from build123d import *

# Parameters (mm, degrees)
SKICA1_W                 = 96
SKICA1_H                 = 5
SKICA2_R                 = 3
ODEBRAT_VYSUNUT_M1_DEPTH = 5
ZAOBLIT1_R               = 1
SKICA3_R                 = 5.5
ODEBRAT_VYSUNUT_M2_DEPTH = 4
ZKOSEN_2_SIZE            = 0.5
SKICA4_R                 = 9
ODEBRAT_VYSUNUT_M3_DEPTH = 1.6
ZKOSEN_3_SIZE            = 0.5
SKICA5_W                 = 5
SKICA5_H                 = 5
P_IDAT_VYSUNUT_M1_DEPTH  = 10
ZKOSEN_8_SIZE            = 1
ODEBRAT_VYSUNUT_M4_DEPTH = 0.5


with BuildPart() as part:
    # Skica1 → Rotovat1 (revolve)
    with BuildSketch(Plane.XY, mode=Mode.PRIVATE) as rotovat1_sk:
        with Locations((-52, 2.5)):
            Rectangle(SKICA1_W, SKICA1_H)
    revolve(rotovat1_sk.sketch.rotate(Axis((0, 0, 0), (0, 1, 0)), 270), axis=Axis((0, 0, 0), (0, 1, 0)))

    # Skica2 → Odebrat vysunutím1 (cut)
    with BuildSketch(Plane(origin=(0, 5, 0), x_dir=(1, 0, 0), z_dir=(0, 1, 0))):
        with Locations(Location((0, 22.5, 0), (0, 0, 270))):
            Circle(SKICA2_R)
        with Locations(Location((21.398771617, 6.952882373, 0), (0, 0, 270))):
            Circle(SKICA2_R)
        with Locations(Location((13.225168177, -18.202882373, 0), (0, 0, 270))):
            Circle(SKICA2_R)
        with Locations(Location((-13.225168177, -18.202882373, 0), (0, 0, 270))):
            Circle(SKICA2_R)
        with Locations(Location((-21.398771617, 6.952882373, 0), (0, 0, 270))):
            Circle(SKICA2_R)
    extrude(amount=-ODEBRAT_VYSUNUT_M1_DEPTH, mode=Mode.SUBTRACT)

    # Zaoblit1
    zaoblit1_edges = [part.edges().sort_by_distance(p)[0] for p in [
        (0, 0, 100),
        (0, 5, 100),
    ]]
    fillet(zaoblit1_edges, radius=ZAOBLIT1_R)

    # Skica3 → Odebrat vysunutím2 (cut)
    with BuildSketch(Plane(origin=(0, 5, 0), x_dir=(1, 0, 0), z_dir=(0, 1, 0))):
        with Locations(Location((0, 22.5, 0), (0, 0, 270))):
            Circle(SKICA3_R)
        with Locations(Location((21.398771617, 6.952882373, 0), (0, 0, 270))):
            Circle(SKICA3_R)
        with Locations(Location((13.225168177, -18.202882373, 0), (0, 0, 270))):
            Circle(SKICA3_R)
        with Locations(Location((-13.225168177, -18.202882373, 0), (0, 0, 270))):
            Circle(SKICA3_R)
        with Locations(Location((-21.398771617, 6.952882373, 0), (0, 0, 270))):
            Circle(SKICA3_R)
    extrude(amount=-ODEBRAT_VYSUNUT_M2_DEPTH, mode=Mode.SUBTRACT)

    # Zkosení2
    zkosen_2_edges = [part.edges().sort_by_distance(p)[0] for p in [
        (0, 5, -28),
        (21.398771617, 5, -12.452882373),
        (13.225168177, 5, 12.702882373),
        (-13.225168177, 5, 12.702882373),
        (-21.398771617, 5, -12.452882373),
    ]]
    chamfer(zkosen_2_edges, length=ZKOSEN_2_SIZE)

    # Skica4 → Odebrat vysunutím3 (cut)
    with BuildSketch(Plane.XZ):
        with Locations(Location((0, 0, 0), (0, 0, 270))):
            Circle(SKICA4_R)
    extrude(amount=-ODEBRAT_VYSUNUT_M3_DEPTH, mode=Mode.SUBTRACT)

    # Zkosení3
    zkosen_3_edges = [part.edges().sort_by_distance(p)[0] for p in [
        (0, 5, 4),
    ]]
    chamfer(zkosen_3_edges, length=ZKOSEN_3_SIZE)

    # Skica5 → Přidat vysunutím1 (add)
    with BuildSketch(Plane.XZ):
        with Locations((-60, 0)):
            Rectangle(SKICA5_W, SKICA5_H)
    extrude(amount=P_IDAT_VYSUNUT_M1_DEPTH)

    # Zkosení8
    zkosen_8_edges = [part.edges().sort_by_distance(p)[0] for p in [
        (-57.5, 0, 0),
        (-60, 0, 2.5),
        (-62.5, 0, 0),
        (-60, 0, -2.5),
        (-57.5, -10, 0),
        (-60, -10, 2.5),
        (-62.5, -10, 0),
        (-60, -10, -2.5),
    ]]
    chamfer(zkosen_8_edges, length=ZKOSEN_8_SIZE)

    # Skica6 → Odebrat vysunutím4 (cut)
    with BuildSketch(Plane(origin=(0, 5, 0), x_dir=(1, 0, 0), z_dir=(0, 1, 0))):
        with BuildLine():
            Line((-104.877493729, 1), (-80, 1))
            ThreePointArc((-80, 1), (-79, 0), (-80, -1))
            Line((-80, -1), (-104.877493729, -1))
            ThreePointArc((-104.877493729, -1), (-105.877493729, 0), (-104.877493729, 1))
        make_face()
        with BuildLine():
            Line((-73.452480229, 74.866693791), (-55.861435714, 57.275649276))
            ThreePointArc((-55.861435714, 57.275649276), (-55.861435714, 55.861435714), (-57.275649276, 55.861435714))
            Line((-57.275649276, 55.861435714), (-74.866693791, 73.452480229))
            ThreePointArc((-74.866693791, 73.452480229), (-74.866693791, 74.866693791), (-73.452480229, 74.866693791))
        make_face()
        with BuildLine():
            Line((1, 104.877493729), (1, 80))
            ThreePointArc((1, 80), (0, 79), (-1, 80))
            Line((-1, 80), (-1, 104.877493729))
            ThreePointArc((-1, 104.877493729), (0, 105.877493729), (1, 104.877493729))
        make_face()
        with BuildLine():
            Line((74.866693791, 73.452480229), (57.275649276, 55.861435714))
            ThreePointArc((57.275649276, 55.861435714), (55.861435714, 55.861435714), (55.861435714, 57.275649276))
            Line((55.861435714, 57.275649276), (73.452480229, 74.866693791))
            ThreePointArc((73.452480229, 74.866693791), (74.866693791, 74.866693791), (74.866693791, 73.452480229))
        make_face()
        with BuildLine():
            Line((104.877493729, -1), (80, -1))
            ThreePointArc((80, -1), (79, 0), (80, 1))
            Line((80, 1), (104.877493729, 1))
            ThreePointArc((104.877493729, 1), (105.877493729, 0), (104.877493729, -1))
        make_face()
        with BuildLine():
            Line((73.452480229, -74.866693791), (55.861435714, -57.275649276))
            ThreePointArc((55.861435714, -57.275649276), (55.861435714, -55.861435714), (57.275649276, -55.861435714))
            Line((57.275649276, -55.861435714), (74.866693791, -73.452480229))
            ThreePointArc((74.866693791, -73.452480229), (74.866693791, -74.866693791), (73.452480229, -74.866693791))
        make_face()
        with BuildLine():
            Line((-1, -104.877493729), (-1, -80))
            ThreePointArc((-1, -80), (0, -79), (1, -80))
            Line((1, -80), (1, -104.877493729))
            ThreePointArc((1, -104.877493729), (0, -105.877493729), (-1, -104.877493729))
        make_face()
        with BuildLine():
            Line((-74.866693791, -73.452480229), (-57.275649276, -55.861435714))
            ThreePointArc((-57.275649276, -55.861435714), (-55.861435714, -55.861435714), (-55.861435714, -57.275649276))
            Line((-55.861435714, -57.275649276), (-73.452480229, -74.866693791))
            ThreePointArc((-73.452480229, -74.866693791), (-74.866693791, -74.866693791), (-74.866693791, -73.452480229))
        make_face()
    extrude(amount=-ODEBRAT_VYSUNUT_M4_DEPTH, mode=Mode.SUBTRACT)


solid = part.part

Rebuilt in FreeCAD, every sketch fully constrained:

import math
import FreeCAD as App
import Part
import Sketcher
Q = App.Units.Quantity


def edges_at(feature, points):
    """Names of the edges that pass closest to the given points."""
    edges = feature.Shape.Edges
    near = lambda p: min(range(len(edges)), key=lambda i: edges[i].distToShape(Part.Vertex(*p))[0])
    return sorted({f"Edge{near(p) + 1}" for p in points})


def add_polygon(sketch, points):
    """Adds a closed chain of lines whose ends are joined by coincident constraints."""
    first, n = sketch.GeometryCount, len(points)
    for a, b in zip(points, points[1:] + points[:1]):
        sketch.addGeometry(Part.LineSegment(App.Vector(*a, 0), App.Vector(*b, 0)), False)
    for i in range(n):
        sketch.addConstraint(Sketcher.Constraint("Coincident", first + i, 2, first + (i + 1) % n, 1))

doc = App.newDocument("Part")
params = doc.addObject("Spreadsheet::Sheet", "Params")
for row, (alias, value) in enumerate([
    ("sketch1_width", "96 mm"),
    ("sketch1_height", "5 mm"),
    ("revolution_angle", "360 deg"),
    ("sketch2_diameter", "6 mm"),
    ("pocket1_length", "5 mm"),
    ("fillet_radius", "1 mm"),
    ("sketch3_diameter", "11 mm"),
    ("pocket2_length", "4 mm"),
    ("chamfer_size", "0.5 mm"),
    ("sketch4_diameter", "18 mm"),
    ("pocket3_length", "1.6 mm"),
    ("chamfer2_size", "0.5 mm"),
    ("sketch5_width", "5 mm"),
    ("pad1_length", "10 mm"),
    ("chamfer3_size", "1 mm"),
    ("sketch6_radius", "1 mm"),
    ("pocket4_length", "0.5 mm"),
], start=1):
    params.set(f"A{row}", alias)
    params.set(f"B{row}", "=" + value)
    params.setAlias(f"B{row}", alias)

body = doc.addObject("PartDesign::Body", "Body")

sketch1 = body.newObject("Sketcher::SketchObject", "Sketch")
sketch1.AttachmentSupport = (doc.getObject("XY_Plane"), [""])
sketch1.MapMode = "FlatFace"
add_polygon(sketch1, [(-100, 5), (-100, 0), (-4, 0), (-4, 5)])
sketch1.addConstraint(Sketcher.Constraint("Vertical", 0))
sketch1.addConstraint(Sketcher.Constraint("Horizontal", 1))
sketch1.addConstraint(Sketcher.Constraint("Vertical", 2))
sketch1.addConstraint(Sketcher.Constraint("Horizontal", 3))
sketch1.addConstraint(Sketcher.Constraint("PointOnObject", 0, 2, -1))
sketch1.addConstraint(Sketcher.Constraint("DistanceX", 1, 1, 1, 2, Q("96 mm")))
sketch1.addConstraint(Sketcher.Constraint("DistanceY", 0, 2, 0, 1, Q("5 mm")))
sketch1.addConstraint(Sketcher.Constraint("DistanceX", 0, 2, -1, 1, Q("100 mm")))
sketch1.setExpression("Constraints[9]", "Params.sketch1_width")
sketch1.setExpression("Constraints[10]", "Params.sketch1_height")
revolution = body.newObject("PartDesign::Revolution", "Revolution")
revolution.Profile = sketch1
revolution.ReferenceAxis = (sketch1, ["V_Axis"])
revolution.setExpression("Angle", "Params.revolution_angle")

sketch2 = body.newObject("Sketcher::SketchObject", "Sketch001")
sketch2.AttachmentSupport = (doc.getObject("XZ_Plane"), [""])
sketch2.MapMode = "FlatFace"
sketch2.AttachmentOffset = App.Placement(App.Vector(0, 0, -5), App.Rotation())
sketch2.addGeometry(Part.Circle(App.Vector(0, -22.5, 0), App.Vector(0, 0, 1), 3), False)
sketch2.addGeometry(Part.Circle(App.Vector(21.4, -7, 0), App.Vector(0, 0, 1), 3), False)
sketch2.addGeometry(Part.Circle(App.Vector(13.2, 18.2, 0), App.Vector(0, 0, 1), 3), False)
sketch2.addGeometry(Part.Circle(App.Vector(-13.2, 18.2, 0), App.Vector(0, 0, 1), 3), False)
sketch2.addGeometry(Part.Circle(App.Vector(-21.4, -7, 0), App.Vector(0, 0, 1), 3), False)
sketch2.addConstraint(Sketcher.Constraint("Equal", 0, 1))
sketch2.addConstraint(Sketcher.Constraint("Equal", 1, 2))
sketch2.addConstraint(Sketcher.Constraint("Equal", 2, 3))
sketch2.addConstraint(Sketcher.Constraint("Equal", 3, 4))
sketch2.addConstraint(Sketcher.Constraint("Symmetric", 2, 3, 3, 3, -2))
sketch2.addConstraint(Sketcher.Constraint("Symmetric", 1, 3, 4, 3, -2))
sketch2.addConstraint(Sketcher.Constraint("PointOnObject", 0, 3, -2))
sketch2.addConstraint(Sketcher.Constraint("Diameter", 0, Q("6 mm")))
sketch2.addConstraint(Sketcher.Constraint("DistanceY", 0, 3, -1, 1, Q("22.5 mm")))
sketch2.addConstraint(Sketcher.Constraint("DistanceX", -1, 1, 1, 3, Q("21.398772 mm")))
sketch2.addConstraint(Sketcher.Constraint("DistanceX", -1, 1, 2, 3, Q("13.225168 mm")))
sketch2.addConstraint(Sketcher.Constraint("DistanceY", 1, 3, -1, 1, Q("6.952882 mm")))
sketch2.addConstraint(Sketcher.Constraint("DistanceY", -1, 1, 2, 3, Q("18.202882 mm")))
sketch2.setExpression("Constraints[7]", "Params.sketch2_diameter")
pocket1 = body.newObject("PartDesign::Pocket", "Pocket")
pocket1.Profile = sketch2
pocket1.setExpression("Length", "Params.pocket1_length")
pocket1.Reversed = True
doc.recompute()

fillet = body.newObject("PartDesign::Fillet", "Fillet")
fillet.Base = (pocket1, edges_at(pocket1, [(0, 0, 100), (0, 5, 100)]))
fillet.setExpression("Radius", "Params.fillet_radius")

sketch3 = body.newObject("Sketcher::SketchObject", "Sketch002")
sketch3.AttachmentSupport = (doc.getObject("XZ_Plane"), [""])
sketch3.MapMode = "FlatFace"
sketch3.AttachmentOffset = App.Placement(App.Vector(0, 0, -5), App.Rotation())
sketch3.addGeometry(Part.Circle(App.Vector(0, -22, 0), App.Vector(0, 0, 1), 6), False)
sketch3.addGeometry(Part.Circle(App.Vector(21, -7, 0), App.Vector(0, 0, 1), 6), False)
sketch3.addGeometry(Part.Circle(App.Vector(13, 18, 0), App.Vector(0, 0, 1), 6), False)
sketch3.addGeometry(Part.Circle(App.Vector(-13, 18, 0), App.Vector(0, 0, 1), 6), False)
sketch3.addGeometry(Part.Circle(App.Vector(-21, -7, 0), App.Vector(0, 0, 1), 6), False)
sketch3.addConstraint(Sketcher.Constraint("Equal", 0, 1))
sketch3.addConstraint(Sketcher.Constraint("Equal", 1, 2))
sketch3.addConstraint(Sketcher.Constraint("Equal", 2, 3))
sketch3.addConstraint(Sketcher.Constraint("Equal", 3, 4))
sketch3.addConstraint(Sketcher.Constraint("Symmetric", 2, 3, 3, 3, -2))
sketch3.addConstraint(Sketcher.Constraint("Symmetric", 1, 3, 4, 3, -2))
sketch3.addConstraint(Sketcher.Constraint("PointOnObject", 0, 3, -2))
sketch3.addConstraint(Sketcher.Constraint("Diameter", 0, Q("11 mm")))
sketch3.addConstraint(Sketcher.Constraint("DistanceY", 0, 3, -1, 1, Q("22.5 mm")))
sketch3.addConstraint(Sketcher.Constraint("DistanceX", -1, 1, 1, 3, Q("21.398772 mm")))
sketch3.addConstraint(Sketcher.Constraint("DistanceX", -1, 1, 2, 3, Q("13.225168 mm")))
sketch3.addConstraint(Sketcher.Constraint("DistanceY", 1, 3, -1, 1, Q("6.952882 mm")))
sketch3.addConstraint(Sketcher.Constraint("DistanceY", -1, 1, 2, 3, Q("18.202882 mm")))
sketch3.setExpression("Constraints[7]", "Params.sketch3_diameter")
pocket2 = body.newObject("PartDesign::Pocket", "Pocket001")
pocket2.Profile = sketch3
pocket2.setExpression("Length", "Params.pocket2_length")
pocket2.Reversed = True
doc.recompute()

chamfer = body.newObject("PartDesign::Chamfer", "Chamfer")
chamfer.Base = (pocket2, edges_at(pocket2, [
    (0, 5, -28),
    (21.399, 5, -12.453),
    (13.225, 5, 12.703),
    (-13.225, 5, 12.703),
    (-21.399, 5, -12.453),
]))
chamfer.setExpression("Size", "Params.chamfer_size")

sketch4 = body.newObject("Sketcher::SketchObject", "Sketch003")
sketch4.AttachmentSupport = (doc.getObject("XZ_Plane"), [""])
sketch4.MapMode = "FlatFace"
sketch4.addGeometry(Part.Circle(App.Vector(0, 0, 0), App.Vector(0, 0, 1), 9), False)
sketch4.addConstraint(Sketcher.Constraint("Coincident", 0, 3, -1, 1))
sketch4.addConstraint(Sketcher.Constraint("Diameter", 0, Q("18 mm")))
sketch4.setExpression("Constraints[1]", "Params.sketch4_diameter")
pocket3 = body.newObject("PartDesign::Pocket", "Pocket002")
pocket3.Profile = sketch4
pocket3.setExpression("Length", "Params.pocket3_length")
doc.recompute()

chamfer2 = body.newObject("PartDesign::Chamfer", "Chamfer001")
chamfer2.Base = (pocket3, edges_at(pocket3, [(0, 5, 4)]))
chamfer2.setExpression("Size", "Params.chamfer2_size")

sketch5 = body.newObject("Sketcher::SketchObject", "Sketch004")
sketch5.AttachmentSupport = (doc.getObject("XZ_Plane"), [""])
sketch5.MapMode = "FlatFace"
add_polygon(sketch5, [(-62, 2), (-62, -2), (-58, -2), (-58, 2)])
sketch5.addConstraint(Sketcher.Constraint("Vertical", 0))
sketch5.addConstraint(Sketcher.Constraint("Horizontal", 1))
sketch5.addConstraint(Sketcher.Constraint("Vertical", 2))
sketch5.addConstraint(Sketcher.Constraint("Horizontal", 3))
sketch5.addConstraint(Sketcher.Constraint("Equal", 3, 0))
sketch5.addConstraint(Sketcher.Constraint("DistanceX", 1, 1, 1, 2, Q("5 mm")))
sketch5.addConstraint(Sketcher.Constraint("DistanceX", 0, 2, -1, 1, Q("62.5 mm")))
sketch5.addConstraint(Sketcher.Constraint("DistanceY", 0, 2, -1, 1, Q("2.5 mm")))
sketch5.setExpression("Constraints[9]", "Params.sketch5_width")
pad1 = body.newObject("PartDesign::Pad", "Pad")
pad1.Profile = sketch5
pad1.setExpression("Length", "Params.pad1_length")
doc.recompute()

chamfer3 = body.newObject("PartDesign::Chamfer", "Chamfer002")
chamfer3.Base = (pad1, edges_at(pad1, [
    (-57.5, 0, 0),
    (-60, 0, 2.5),
    (-62.5, 0, 0),
    (-60, 0, -2.5),
    (-57.5, -10, 0),
    (-60, -10, 2.5),
    (-62.5, -10, 0),
    (-60, -10, -2.5),
]))
chamfer3.setExpression("Size", "Params.chamfer3_size")

sketch6 = body.newObject("Sketcher::SketchObject", "Sketch005")
sketch6.AttachmentSupport = (doc.getObject("XZ_Plane"), [""])
sketch6.MapMode = "FlatFace"
sketch6.AttachmentOffset = App.Placement(App.Vector(0, 0, -5), App.Rotation())
sketch6.addGeometry(Part.LineSegment(App.Vector(-80, -1, 0), App.Vector(-104.9, -1, 0)), False)
sketch6.addGeometry(Part.ArcOfCircle(Part.Circle(App.Vector(-104.9, 0, 0), App.Vector(0, 0, 1), 1), math.radians(90), math.radians(270)), False)
sketch6.addGeometry(Part.LineSegment(App.Vector(-104.9, 1, 0), App.Vector(-80, 1, 0)), False)
sketch6.addGeometry(Part.ArcOfCircle(Part.Circle(App.Vector(-80, 0, 0), App.Vector(0, 0, 1), 1), math.radians(-90), math.radians(90)), False)
sketch6.addGeometry(Part.LineSegment(App.Vector(-55.9, -57.3, 0), App.Vector(-73.5, -74.9, 0)), False)
sketch6.addGeometry(Part.ArcOfCircle(Part.Circle(App.Vector(-74.2, -74.2, 0), App.Vector(0, 0, 1), 1), math.radians(135), math.radians(315)), False)
sketch6.addGeometry(Part.LineSegment(App.Vector(-74.9, -73.5, 0), App.Vector(-57.3, -55.9, 0)), False)
sketch6.addGeometry(Part.ArcOfCircle(Part.Circle(App.Vector(-56.6, -56.6, 0), App.Vector(0, 0, 1), 1), math.radians(-45), math.radians(135)), False)
sketch6.addGeometry(Part.LineSegment(App.Vector(1, -80, 0), App.Vector(1, -104.9, 0)), False)
sketch6.addGeometry(Part.ArcOfCircle(Part.Circle(App.Vector(0, -104.9, 0), App.Vector(0, 0, 1), 1), math.radians(180), math.radians(360)), False)
sketch6.addGeometry(Part.LineSegment(App.Vector(-1, -104.9, 0), App.Vector(-1, -80, 0)), False)
sketch6.addGeometry(Part.ArcOfCircle(Part.Circle(App.Vector(0, -80, 0), App.Vector(0, 0, 1), 1), math.radians(0), math.radians(180)), False)
sketch6.addGeometry(Part.LineSegment(App.Vector(57.3, -55.9, 0), App.Vector(74.9, -73.5, 0)), False)
sketch6.addGeometry(Part.ArcOfCircle(Part.Circle(App.Vector(74.2, -74.2, 0), App.Vector(0, 0, 1), 1), math.radians(-135), math.radians(45)), False)
sketch6.addGeometry(Part.LineSegment(App.Vector(73.5, -74.9, 0), App.Vector(55.9, -57.3, 0)), False)
sketch6.addGeometry(Part.ArcOfCircle(Part.Circle(App.Vector(56.6, -56.6, 0), App.Vector(0, 0, 1), 1), math.radians(45), math.radians(225)), False)
sketch6.addGeometry(Part.LineSegment(App.Vector(80, 1, 0), App.Vector(104.9, 1, 0)), False)
sketch6.addGeometry(Part.ArcOfCircle(Part.Circle(App.Vector(104.9, 0, 0), App.Vector(0, 0, 1), 1), math.radians(-90), math.radians(90)), False)
sketch6.addGeometry(Part.LineSegment(App.Vector(104.9, -1, 0), App.Vector(80, -1, 0)), False)
sketch6.addGeometry(Part.ArcOfCircle(Part.Circle(App.Vector(80, 0, 0), App.Vector(0, 0, 1), 1), math.radians(90), math.radians(270)), False)
sketch6.addGeometry(Part.LineSegment(App.Vector(55.9, 57.3, 0), App.Vector(73.5, 74.9, 0)), False)
sketch6.addGeometry(Part.ArcOfCircle(Part.Circle(App.Vector(74.2, 74.2, 0), App.Vector(0, 0, 1), 1), math.radians(-45), math.radians(135)), False)
sketch6.addGeometry(Part.LineSegment(App.Vector(74.9, 73.5, 0), App.Vector(57.3, 55.9, 0)), False)
sketch6.addGeometry(Part.ArcOfCircle(Part.Circle(App.Vector(56.6, 56.6, 0), App.Vector(0, 0, 1), 1), math.radians(135), math.radians(315)), False)
sketch6.addGeometry(Part.LineSegment(App.Vector(-1, 80, 0), App.Vector(-1, 104.9, 0)), False)
sketch6.addGeometry(Part.ArcOfCircle(Part.Circle(App.Vector(0, 104.9, 0), App.Vector(0, 0, 1), 1), math.radians(0), math.radians(180)), False)
sketch6.addGeometry(Part.LineSegment(App.Vector(1, 104.9, 0), App.Vector(1, 80, 0)), False)
sketch6.addGeometry(Part.ArcOfCircle(Part.Circle(App.Vector(0, 80, 0), App.Vector(0, 0, 1), 1), math.radians(180), math.radians(360)), False)
sketch6.addGeometry(Part.LineSegment(App.Vector(-57.3, 55.9, 0), App.Vector(-74.9, 73.5, 0)), False)
sketch6.addGeometry(Part.ArcOfCircle(Part.Circle(App.Vector(-74.2, 74.2, 0), App.Vector(0, 0, 1), 1), math.radians(45), math.radians(225)), False)
sketch6.addGeometry(Part.LineSegment(App.Vector(-73.5, 74.9, 0), App.Vector(-55.9, 57.3, 0)), False)
sketch6.addGeometry(Part.ArcOfCircle(Part.Circle(App.Vector(-56.6, 56.6, 0), App.Vector(0, 0, 1), 1), math.radians(-135), math.radians(45)), False)
sketch6.addConstraint(Sketcher.Constraint("Tangent", 0, 2, 1, 2))
sketch6.addConstraint(Sketcher.Constraint("Tangent", 1, 1, 2, 1))
sketch6.addConstraint(Sketcher.Constraint("Tangent", 2, 2, 3, 2))
sketch6.addConstraint(Sketcher.Constraint("Tangent", 3, 1, 0, 1))
sketch6.addConstraint(Sketcher.Constraint("Tangent", 4, 2, 5, 2))
sketch6.addConstraint(Sketcher.Constraint("Tangent", 5, 1, 6, 1))
sketch6.addConstraint(Sketcher.Constraint("Tangent", 6, 2, 7, 2))
sketch6.addConstraint(Sketcher.Constraint("Tangent", 7, 1, 4, 1))
sketch6.addConstraint(Sketcher.Constraint("Tangent", 8, 2, 9, 2))
sketch6.addConstraint(Sketcher.Constraint("Tangent", 9, 1, 10, 1))
sketch6.addConstraint(Sketcher.Constraint("Tangent", 10, 2, 11, 2))
sketch6.addConstraint(Sketcher.Constraint("Tangent", 11, 1, 8, 1))
sketch6.addConstraint(Sketcher.Constraint("Tangent", 12, 2, 13, 2))
sketch6.addConstraint(Sketcher.Constraint("Tangent", 13, 1, 14, 1))
sketch6.addConstraint(Sketcher.Constraint("Tangent", 14, 2, 15, 2))
sketch6.addConstraint(Sketcher.Constraint("Tangent", 15, 1, 12, 1))
sketch6.addConstraint(Sketcher.Constraint("Tangent", 16, 2, 17, 2))
sketch6.addConstraint(Sketcher.Constraint("Tangent", 17, 1, 18, 1))
sketch6.addConstraint(Sketcher.Constraint("Tangent", 18, 2, 19, 2))
sketch6.addConstraint(Sketcher.Constraint("Tangent", 19, 1, 16, 1))
sketch6.addConstraint(Sketcher.Constraint("Tangent", 20, 2, 21, 2))
sketch6.addConstraint(Sketcher.Constraint("Tangent", 21, 1, 22, 1))
sketch6.addConstraint(Sketcher.Constraint("Tangent", 22, 2, 23, 2))
sketch6.addConstraint(Sketcher.Constraint("Tangent", 23, 1, 20, 1))
sketch6.addConstraint(Sketcher.Constraint("Tangent", 24, 2, 25, 2))
sketch6.addConstraint(Sketcher.Constraint("Tangent", 25, 1, 26, 1))
sketch6.addConstraint(Sketcher.Constraint("Tangent", 26, 2, 27, 2))
sketch6.addConstraint(Sketcher.Constraint("Tangent", 27, 1, 24, 1))
sketch6.addConstraint(Sketcher.Constraint("Tangent", 28, 2, 29, 2))
sketch6.addConstraint(Sketcher.Constraint("Tangent", 29, 1, 30, 1))
sketch6.addConstraint(Sketcher.Constraint("Tangent", 30, 2, 31, 2))
sketch6.addConstraint(Sketcher.Constraint("Tangent", 31, 1, 28, 1))
sketch6.addConstraint(Sketcher.Constraint("Horizontal", 0))
sketch6.addConstraint(Sketcher.Constraint("Horizontal", 2))
sketch6.addConstraint(Sketcher.Constraint("Vertical", 8))
sketch6.addConstraint(Sketcher.Constraint("Vertical", 10))
sketch6.addConstraint(Sketcher.Constraint("Horizontal", 16))
sketch6.addConstraint(Sketcher.Constraint("Horizontal", 18))
sketch6.addConstraint(Sketcher.Constraint("Vertical", 24))
sketch6.addConstraint(Sketcher.Constraint("Vertical", 26))
sketch6.addConstraint(Sketcher.Constraint("Equal", 3, 5))
sketch6.addConstraint(Sketcher.Constraint("Equal", 5, 7))
sketch6.addConstraint(Sketcher.Constraint("Equal", 7, 9))
sketch6.addConstraint(Sketcher.Constraint("Equal", 11, 13))
sketch6.addConstraint(Sketcher.Constraint("Equal", 13, 15))
sketch6.addConstraint(Sketcher.Constraint("Equal", 15, 17))
sketch6.addConstraint(Sketcher.Constraint("Equal", 19, 21))
sketch6.addConstraint(Sketcher.Constraint("Equal", 21, 23))
sketch6.addConstraint(Sketcher.Constraint("Equal", 23, 25))
sketch6.addConstraint(Sketcher.Constraint("Equal", 27, 29))
sketch6.addConstraint(Sketcher.Constraint("Equal", 29, 31))
sketch6.addConstraint(Sketcher.Constraint("Symmetric", 1, 3, 17, 3, -1, 1))
sketch6.addConstraint(Sketcher.Constraint("Symmetric", 5, 3, 21, 3, -1, 1))
sketch6.addConstraint(Sketcher.Constraint("Symmetric", 7, 3, 23, 3, -1, 1))
sketch6.addConstraint(Sketcher.Constraint("Symmetric", 9, 3, 25, 3, -1, 1))
sketch6.addConstraint(Sketcher.Constraint("Symmetric", 13, 3, 29, 3, -1, 1))
sketch6.addConstraint(Sketcher.Constraint("Symmetric", 15, 3, 31, 3, -1, 1))
sketch6.addConstraint(Sketcher.Constraint("Symmetric", 5, 3, 13, 3, -2))
sketch6.addConstraint(Sketcher.Constraint("Symmetric", 7, 3, 15, 3, -2))
sketch6.addConstraint(Sketcher.Constraint("Symmetric", 3, 3, 19, 3, -2))
sketch6.addConstraint(Sketcher.Constraint("Symmetric", 11, 3, 27, 3, -1))
sketch6.addConstraint(Sketcher.Constraint("Perpendicular", 6, 12))
sketch6.addConstraint(Sketcher.Constraint("Equal", 18, 8))
sketch6.addConstraint(Sketcher.Constraint("Radius", 1, Q("1 mm")))
sketch6.addConstraint(Sketcher.Constraint("DistanceX", 3, 3, -1, 1, Q("80 mm")))
sketch6.addConstraint(Sketcher.Constraint("DistanceY", 11, 3, -1, 1, Q("80 mm")))
sketch6.addConstraint(Sketcher.Constraint("DistanceX", 0, 2, 0, 1, Q("24.877494 mm")))
sketch6.addConstraint(Sketcher.Constraint("DistanceX", 4, 2, -1, 1, Q("73.45248 mm")))
sketch6.addConstraint(Sketcher.Constraint("DistanceY", 5, 1, -1, 1, Q("73.45248 mm")))
sketch6.addConstraint(Sketcher.Constraint("DistanceX", 6, 2, -1, 1, Q("57.275649 mm")))
sketch6.setExpression("Constraints[63]", "Params.sketch6_radius")
pocket4 = body.newObject("PartDesign::Pocket", "Pocket003")
pocket4.Profile = sketch6
pocket4.setExpression("Length", "Params.pocket4_length")
pocket4.Reversed = True

doc.recompute()
